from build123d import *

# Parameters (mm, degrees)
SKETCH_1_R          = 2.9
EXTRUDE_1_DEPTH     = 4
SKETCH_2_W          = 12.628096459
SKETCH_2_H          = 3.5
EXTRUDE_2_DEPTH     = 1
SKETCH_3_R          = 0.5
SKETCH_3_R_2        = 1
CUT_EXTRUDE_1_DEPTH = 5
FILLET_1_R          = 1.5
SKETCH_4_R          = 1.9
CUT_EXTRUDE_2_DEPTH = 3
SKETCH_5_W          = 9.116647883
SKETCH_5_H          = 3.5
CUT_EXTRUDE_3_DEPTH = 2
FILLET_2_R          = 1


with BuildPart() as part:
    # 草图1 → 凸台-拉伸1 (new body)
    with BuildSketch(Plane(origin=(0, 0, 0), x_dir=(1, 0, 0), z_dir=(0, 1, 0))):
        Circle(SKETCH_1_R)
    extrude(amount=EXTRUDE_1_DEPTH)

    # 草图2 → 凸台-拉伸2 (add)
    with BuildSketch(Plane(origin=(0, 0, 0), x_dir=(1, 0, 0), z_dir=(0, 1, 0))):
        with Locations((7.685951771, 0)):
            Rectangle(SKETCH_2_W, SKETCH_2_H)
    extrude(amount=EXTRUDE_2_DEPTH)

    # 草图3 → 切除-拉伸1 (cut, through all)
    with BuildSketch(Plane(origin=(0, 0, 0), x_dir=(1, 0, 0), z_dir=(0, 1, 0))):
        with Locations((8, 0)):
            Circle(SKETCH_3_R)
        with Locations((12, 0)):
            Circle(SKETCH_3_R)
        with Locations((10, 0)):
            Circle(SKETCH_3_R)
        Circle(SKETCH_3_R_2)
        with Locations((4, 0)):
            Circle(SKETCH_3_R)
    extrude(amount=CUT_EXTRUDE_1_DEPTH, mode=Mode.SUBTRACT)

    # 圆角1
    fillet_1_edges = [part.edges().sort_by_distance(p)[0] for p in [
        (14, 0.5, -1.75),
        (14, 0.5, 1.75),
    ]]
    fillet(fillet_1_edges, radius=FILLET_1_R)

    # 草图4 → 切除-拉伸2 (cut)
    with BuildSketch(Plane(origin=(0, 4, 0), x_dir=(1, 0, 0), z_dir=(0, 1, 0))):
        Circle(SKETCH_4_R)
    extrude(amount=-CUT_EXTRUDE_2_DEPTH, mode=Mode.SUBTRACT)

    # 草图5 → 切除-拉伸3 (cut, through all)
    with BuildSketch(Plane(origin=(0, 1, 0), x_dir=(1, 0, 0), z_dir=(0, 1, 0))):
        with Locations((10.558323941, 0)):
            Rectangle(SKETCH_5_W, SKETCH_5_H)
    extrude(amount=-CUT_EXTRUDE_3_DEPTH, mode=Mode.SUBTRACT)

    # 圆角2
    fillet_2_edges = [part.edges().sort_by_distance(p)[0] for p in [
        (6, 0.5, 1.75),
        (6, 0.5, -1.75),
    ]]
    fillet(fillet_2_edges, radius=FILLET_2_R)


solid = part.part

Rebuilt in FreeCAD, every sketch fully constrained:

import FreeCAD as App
import Part
import Sketcher
Q = App.Units.Quantity


def edges_at(feature, points):
    """Names of the edges that pass closest to the given points."""
    edges = feature.Shape.Edges
    near = lambda p: min(range(len(edges)), key=lambda i: edges[i].distToShape(Part.Vertex(*p))[0])
    return sorted({f"Edge{near(p) + 1}" for p in points})

doc = App.newDocument("Part")
body = doc.addObject("PartDesign::Body", "Body")

sketch1 = body.newObject("Sketcher::SketchObject", "Sketch")
sketch1.AttachmentSupport = (doc.getObject("XZ_Plane"), [""])
sketch1.MapMode = "FlatFace"
sketch1.addGeometry(Part.Circle(App.Vector(0, 0, 0), App.Vector(0, 0, 1), 2.9), False)
sketch1.addConstraint([
    Sketcher.Constraint("Coincident", 0, 3, -1, 1),
    Sketcher.Constraint("Diameter", 0, Q("5.8 mm")),
])
pad1 = body.newObject("PartDesign::Pad", "Pad")
pad1.Profile = sketch1
pad1.Length = 4
pad1.Reversed = True

sketch2 = body.newObject("Sketcher::SketchObject", "Sketch001")
sketch2.AttachmentSupport = (doc.getObject("XZ_Plane"), [""])
sketch2.MapMode = "FlatFace"
sketch2.addGeometry([
    Part.LineSegment(App.Vector(1.4, -1.8, 0), App.Vector(1.4, 1.8, 0)),
    Part.LineSegment(App.Vector(1.4, 1.8, 0), App.Vector(14, 1.8, 0)),
    Part.LineSegment(App.Vector(14, 1.8, 0), App.Vector(14, -1.8, 0)),
    Part.LineSegment(App.Vector(14, -1.8, 0), App.Vector(1.4, -1.8, 0)),
], False)
sketch2.addConstraint([
    Sketcher.Constraint("Coincident", 0, 2, 1, 1),
    Sketcher.Constraint("Coincident", 1, 2, 2, 1),
    Sketcher.Constraint("Coincident", 2, 2, 3, 1),
    Sketcher.Constraint("Coincident", 3, 2, 0, 1),
    Sketcher.Constraint("Vertical", 0),
    Sketcher.Constraint("Horizontal", 1),
    Sketcher.Constraint("Vertical", 2),
    Sketcher.Constraint("Horizontal", 3),
    Sketcher.Constraint("DistanceY", 0, 1, 0, 2, Q("3.5 mm")),
    Sketcher.Constraint("DistanceX", -1, 1, 1, 2, Q("14 mm")),
    Sketcher.Constraint("DistanceY", -1, 1, 0, 2, Q("1.75 mm")),
    Sketcher.Constraint("DistanceX", 1, 1, 1, 2, Q("12.628096 mm")),
])
pad2 = body.newObject("PartDesign::Pad", "Pad001")
pad2.Profile = sketch2
pad2.Length = 1
pad2.Reversed = True

sketch3 = body.newObject("Sketcher::SketchObject", "Sketch002")
sketch3.AttachmentSupport = (doc.getObject("XZ_Plane"), [""])
sketch3.MapMode = "FlatFace"
sketch3.addGeometry([
    Part.Circle(App.Vector(8, 0, 0), App.Vector(0, 0, 1), 0.5),
    Part.Circle(App.Vector(12, 0, 0), App.Vector(0, 0, 1), 0.5),
    Part.Circle(App.Vector(10, 0, 0), App.Vector(0, 0, 1), 0.5),
    Part.Circle(App.Vector(0, 0, 0), App.Vector(0, 0, 1), 1),
    Part.Circle(App.Vector(4, 0, 0), App.Vector(0, 0, 1), 0.5),
], False)
sketch3.addConstraint([
    Sketcher.Constraint("Coincident", 3, 3, -1, 1),
    Sketcher.Constraint("Equal", 0, 1),
    Sketcher.Constraint("Equal", 1, 2),
    Sketcher.Constraint("Equal", 2, 4),
    Sketcher.Constraint("PointOnObject", 0, 3, -1),
    Sketcher.Constraint("PointOnObject", 1, 3, -1),
    Sketcher.Constraint("PointOnObject", 2, 3, -1),
    Sketcher.Constraint("PointOnObject", 4, 3, -1),
    Sketcher.Constraint("Diameter", 0, Q("1 mm")),
    Sketcher.Constraint("Diameter", 3, Q("2 mm")),
    Sketcher.Constraint("DistanceX", -1, 1, 0, 3, Q("8 mm")),
    Sketcher.Constraint("DistanceX", -1, 1, 1, 3, Q("12 mm")),
    Sketcher.Constraint("DistanceX", -1, 1, 2, 3, Q("10 mm")),
    Sketcher.Constraint("DistanceX", -1, 1, 4, 3, Q("4 mm")),
])
pocket1 = body.newObject("PartDesign::Pocket", "Pocket")
pocket1.Profile = sketch3
pocket1.Type = "ThroughAll"
doc.recompute()

fillet = body.newObject("PartDesign::Fillet", "Fillet")
fillet.Base = (pocket1, edges_at(pocket1, [(14, 0.5, -1.75), (14, 0.5, 1.75)]))
fillet.Radius = 1.5

sketch4 = body.newObject("Sketcher::SketchObject", "Sketch003")
sketch4.AttachmentSupport = (doc.getObject("XZ_Plane"), [""])
sketch4.MapMode = "FlatFace"
sketch4.AttachmentOffset = App.Placement(App.Vector(0, 0, -4), App.Rotation())
sketch4.addGeometry(Part.Circle(App.Vector(0, 0, 0), App.Vector(0, 0, 1), 1.9), False)
sketch4.addConstraint([
    Sketcher.Constraint("Coincident", 0, 3, -1, 1),
    Sketcher.Constraint("Diameter", 0, Q("3.8 mm")),
])
pocket2 = body.newObject("PartDesign::Pocket", "Pocket001")
pocket2.Profile = sketch4
pocket2.Length = 3
pocket2.Reversed = True

sketch5 = body.newObject("Sketcher::SketchObject", "Sketch004")
sketch5.AttachmentSupport = (doc.getObject("XZ_Plane"), [""])
sketch5.MapMode = "FlatFace"
sketch5.AttachmentOffset = App.Placement(App.Vector(0, 0, -1), App.Rotation())
sketch5.addGeometry([
    Part.LineSegment(App.Vector(6, -1.8, 0), App.Vector(6, 1.8, 0)),
    Part.LineSegment(App.Vector(6, 1.8, 0), App.Vector(15.1, 1.8, 0)),
    Part.LineSegment(App.Vector(15.1, 1.8, 0), App.Vector(15.1, -1.8, 0)),
    Part.LineSegment(App.Vector(15.1, -1.8, 0), App.Vector(6, -1.8, 0)),
], False)
sketch5.addConstraint([
    Sketcher.Constraint("Coincident", 0, 2, 1, 1),
    Sketcher.Constraint("Coincident", 1, 2, 2, 1),
    Sketcher.Constraint("Coincident", 2, 2, 3, 1),
    Sketcher.Constraint("Coincident", 3, 2, 0, 1),
    Sketcher.Constraint("Vertical", 0),
    Sketcher.Constraint("Horizontal", 1),
    Sketcher.Constraint("Vertical", 2),
    Sketcher.Constraint("Horizontal", 3),
    Sketcher.Constraint("DistanceY", 0, 1, 0, 2, Q("3.5 mm")),
    Sketcher.Constraint("DistanceX", -1, 1, 0, 2, Q("6 mm")),
    Sketcher.Constraint("DistanceY", -1, 1, 0, 2, Q("1.75 mm")),
    Sketcher.Constraint("DistanceX", 1, 1, 1, 2, Q("9.116648 mm")),
])
pocket3 = body.newObject("PartDesign::Pocket", "Pocket002")
pocket3.Profile = sketch5
pocket3.Type = "ThroughAll"
pocket3.Reversed = True
doc.recompute()

fillet2 = body.newObject("PartDesign::Fillet", "Fillet001")
fillet2.Base = (pocket3, edges_at(pocket3, [(6, 0.5, 1.75), (6, 0.5, -1.75)]))
fillet2.Radius = 1

doc.recompute()
